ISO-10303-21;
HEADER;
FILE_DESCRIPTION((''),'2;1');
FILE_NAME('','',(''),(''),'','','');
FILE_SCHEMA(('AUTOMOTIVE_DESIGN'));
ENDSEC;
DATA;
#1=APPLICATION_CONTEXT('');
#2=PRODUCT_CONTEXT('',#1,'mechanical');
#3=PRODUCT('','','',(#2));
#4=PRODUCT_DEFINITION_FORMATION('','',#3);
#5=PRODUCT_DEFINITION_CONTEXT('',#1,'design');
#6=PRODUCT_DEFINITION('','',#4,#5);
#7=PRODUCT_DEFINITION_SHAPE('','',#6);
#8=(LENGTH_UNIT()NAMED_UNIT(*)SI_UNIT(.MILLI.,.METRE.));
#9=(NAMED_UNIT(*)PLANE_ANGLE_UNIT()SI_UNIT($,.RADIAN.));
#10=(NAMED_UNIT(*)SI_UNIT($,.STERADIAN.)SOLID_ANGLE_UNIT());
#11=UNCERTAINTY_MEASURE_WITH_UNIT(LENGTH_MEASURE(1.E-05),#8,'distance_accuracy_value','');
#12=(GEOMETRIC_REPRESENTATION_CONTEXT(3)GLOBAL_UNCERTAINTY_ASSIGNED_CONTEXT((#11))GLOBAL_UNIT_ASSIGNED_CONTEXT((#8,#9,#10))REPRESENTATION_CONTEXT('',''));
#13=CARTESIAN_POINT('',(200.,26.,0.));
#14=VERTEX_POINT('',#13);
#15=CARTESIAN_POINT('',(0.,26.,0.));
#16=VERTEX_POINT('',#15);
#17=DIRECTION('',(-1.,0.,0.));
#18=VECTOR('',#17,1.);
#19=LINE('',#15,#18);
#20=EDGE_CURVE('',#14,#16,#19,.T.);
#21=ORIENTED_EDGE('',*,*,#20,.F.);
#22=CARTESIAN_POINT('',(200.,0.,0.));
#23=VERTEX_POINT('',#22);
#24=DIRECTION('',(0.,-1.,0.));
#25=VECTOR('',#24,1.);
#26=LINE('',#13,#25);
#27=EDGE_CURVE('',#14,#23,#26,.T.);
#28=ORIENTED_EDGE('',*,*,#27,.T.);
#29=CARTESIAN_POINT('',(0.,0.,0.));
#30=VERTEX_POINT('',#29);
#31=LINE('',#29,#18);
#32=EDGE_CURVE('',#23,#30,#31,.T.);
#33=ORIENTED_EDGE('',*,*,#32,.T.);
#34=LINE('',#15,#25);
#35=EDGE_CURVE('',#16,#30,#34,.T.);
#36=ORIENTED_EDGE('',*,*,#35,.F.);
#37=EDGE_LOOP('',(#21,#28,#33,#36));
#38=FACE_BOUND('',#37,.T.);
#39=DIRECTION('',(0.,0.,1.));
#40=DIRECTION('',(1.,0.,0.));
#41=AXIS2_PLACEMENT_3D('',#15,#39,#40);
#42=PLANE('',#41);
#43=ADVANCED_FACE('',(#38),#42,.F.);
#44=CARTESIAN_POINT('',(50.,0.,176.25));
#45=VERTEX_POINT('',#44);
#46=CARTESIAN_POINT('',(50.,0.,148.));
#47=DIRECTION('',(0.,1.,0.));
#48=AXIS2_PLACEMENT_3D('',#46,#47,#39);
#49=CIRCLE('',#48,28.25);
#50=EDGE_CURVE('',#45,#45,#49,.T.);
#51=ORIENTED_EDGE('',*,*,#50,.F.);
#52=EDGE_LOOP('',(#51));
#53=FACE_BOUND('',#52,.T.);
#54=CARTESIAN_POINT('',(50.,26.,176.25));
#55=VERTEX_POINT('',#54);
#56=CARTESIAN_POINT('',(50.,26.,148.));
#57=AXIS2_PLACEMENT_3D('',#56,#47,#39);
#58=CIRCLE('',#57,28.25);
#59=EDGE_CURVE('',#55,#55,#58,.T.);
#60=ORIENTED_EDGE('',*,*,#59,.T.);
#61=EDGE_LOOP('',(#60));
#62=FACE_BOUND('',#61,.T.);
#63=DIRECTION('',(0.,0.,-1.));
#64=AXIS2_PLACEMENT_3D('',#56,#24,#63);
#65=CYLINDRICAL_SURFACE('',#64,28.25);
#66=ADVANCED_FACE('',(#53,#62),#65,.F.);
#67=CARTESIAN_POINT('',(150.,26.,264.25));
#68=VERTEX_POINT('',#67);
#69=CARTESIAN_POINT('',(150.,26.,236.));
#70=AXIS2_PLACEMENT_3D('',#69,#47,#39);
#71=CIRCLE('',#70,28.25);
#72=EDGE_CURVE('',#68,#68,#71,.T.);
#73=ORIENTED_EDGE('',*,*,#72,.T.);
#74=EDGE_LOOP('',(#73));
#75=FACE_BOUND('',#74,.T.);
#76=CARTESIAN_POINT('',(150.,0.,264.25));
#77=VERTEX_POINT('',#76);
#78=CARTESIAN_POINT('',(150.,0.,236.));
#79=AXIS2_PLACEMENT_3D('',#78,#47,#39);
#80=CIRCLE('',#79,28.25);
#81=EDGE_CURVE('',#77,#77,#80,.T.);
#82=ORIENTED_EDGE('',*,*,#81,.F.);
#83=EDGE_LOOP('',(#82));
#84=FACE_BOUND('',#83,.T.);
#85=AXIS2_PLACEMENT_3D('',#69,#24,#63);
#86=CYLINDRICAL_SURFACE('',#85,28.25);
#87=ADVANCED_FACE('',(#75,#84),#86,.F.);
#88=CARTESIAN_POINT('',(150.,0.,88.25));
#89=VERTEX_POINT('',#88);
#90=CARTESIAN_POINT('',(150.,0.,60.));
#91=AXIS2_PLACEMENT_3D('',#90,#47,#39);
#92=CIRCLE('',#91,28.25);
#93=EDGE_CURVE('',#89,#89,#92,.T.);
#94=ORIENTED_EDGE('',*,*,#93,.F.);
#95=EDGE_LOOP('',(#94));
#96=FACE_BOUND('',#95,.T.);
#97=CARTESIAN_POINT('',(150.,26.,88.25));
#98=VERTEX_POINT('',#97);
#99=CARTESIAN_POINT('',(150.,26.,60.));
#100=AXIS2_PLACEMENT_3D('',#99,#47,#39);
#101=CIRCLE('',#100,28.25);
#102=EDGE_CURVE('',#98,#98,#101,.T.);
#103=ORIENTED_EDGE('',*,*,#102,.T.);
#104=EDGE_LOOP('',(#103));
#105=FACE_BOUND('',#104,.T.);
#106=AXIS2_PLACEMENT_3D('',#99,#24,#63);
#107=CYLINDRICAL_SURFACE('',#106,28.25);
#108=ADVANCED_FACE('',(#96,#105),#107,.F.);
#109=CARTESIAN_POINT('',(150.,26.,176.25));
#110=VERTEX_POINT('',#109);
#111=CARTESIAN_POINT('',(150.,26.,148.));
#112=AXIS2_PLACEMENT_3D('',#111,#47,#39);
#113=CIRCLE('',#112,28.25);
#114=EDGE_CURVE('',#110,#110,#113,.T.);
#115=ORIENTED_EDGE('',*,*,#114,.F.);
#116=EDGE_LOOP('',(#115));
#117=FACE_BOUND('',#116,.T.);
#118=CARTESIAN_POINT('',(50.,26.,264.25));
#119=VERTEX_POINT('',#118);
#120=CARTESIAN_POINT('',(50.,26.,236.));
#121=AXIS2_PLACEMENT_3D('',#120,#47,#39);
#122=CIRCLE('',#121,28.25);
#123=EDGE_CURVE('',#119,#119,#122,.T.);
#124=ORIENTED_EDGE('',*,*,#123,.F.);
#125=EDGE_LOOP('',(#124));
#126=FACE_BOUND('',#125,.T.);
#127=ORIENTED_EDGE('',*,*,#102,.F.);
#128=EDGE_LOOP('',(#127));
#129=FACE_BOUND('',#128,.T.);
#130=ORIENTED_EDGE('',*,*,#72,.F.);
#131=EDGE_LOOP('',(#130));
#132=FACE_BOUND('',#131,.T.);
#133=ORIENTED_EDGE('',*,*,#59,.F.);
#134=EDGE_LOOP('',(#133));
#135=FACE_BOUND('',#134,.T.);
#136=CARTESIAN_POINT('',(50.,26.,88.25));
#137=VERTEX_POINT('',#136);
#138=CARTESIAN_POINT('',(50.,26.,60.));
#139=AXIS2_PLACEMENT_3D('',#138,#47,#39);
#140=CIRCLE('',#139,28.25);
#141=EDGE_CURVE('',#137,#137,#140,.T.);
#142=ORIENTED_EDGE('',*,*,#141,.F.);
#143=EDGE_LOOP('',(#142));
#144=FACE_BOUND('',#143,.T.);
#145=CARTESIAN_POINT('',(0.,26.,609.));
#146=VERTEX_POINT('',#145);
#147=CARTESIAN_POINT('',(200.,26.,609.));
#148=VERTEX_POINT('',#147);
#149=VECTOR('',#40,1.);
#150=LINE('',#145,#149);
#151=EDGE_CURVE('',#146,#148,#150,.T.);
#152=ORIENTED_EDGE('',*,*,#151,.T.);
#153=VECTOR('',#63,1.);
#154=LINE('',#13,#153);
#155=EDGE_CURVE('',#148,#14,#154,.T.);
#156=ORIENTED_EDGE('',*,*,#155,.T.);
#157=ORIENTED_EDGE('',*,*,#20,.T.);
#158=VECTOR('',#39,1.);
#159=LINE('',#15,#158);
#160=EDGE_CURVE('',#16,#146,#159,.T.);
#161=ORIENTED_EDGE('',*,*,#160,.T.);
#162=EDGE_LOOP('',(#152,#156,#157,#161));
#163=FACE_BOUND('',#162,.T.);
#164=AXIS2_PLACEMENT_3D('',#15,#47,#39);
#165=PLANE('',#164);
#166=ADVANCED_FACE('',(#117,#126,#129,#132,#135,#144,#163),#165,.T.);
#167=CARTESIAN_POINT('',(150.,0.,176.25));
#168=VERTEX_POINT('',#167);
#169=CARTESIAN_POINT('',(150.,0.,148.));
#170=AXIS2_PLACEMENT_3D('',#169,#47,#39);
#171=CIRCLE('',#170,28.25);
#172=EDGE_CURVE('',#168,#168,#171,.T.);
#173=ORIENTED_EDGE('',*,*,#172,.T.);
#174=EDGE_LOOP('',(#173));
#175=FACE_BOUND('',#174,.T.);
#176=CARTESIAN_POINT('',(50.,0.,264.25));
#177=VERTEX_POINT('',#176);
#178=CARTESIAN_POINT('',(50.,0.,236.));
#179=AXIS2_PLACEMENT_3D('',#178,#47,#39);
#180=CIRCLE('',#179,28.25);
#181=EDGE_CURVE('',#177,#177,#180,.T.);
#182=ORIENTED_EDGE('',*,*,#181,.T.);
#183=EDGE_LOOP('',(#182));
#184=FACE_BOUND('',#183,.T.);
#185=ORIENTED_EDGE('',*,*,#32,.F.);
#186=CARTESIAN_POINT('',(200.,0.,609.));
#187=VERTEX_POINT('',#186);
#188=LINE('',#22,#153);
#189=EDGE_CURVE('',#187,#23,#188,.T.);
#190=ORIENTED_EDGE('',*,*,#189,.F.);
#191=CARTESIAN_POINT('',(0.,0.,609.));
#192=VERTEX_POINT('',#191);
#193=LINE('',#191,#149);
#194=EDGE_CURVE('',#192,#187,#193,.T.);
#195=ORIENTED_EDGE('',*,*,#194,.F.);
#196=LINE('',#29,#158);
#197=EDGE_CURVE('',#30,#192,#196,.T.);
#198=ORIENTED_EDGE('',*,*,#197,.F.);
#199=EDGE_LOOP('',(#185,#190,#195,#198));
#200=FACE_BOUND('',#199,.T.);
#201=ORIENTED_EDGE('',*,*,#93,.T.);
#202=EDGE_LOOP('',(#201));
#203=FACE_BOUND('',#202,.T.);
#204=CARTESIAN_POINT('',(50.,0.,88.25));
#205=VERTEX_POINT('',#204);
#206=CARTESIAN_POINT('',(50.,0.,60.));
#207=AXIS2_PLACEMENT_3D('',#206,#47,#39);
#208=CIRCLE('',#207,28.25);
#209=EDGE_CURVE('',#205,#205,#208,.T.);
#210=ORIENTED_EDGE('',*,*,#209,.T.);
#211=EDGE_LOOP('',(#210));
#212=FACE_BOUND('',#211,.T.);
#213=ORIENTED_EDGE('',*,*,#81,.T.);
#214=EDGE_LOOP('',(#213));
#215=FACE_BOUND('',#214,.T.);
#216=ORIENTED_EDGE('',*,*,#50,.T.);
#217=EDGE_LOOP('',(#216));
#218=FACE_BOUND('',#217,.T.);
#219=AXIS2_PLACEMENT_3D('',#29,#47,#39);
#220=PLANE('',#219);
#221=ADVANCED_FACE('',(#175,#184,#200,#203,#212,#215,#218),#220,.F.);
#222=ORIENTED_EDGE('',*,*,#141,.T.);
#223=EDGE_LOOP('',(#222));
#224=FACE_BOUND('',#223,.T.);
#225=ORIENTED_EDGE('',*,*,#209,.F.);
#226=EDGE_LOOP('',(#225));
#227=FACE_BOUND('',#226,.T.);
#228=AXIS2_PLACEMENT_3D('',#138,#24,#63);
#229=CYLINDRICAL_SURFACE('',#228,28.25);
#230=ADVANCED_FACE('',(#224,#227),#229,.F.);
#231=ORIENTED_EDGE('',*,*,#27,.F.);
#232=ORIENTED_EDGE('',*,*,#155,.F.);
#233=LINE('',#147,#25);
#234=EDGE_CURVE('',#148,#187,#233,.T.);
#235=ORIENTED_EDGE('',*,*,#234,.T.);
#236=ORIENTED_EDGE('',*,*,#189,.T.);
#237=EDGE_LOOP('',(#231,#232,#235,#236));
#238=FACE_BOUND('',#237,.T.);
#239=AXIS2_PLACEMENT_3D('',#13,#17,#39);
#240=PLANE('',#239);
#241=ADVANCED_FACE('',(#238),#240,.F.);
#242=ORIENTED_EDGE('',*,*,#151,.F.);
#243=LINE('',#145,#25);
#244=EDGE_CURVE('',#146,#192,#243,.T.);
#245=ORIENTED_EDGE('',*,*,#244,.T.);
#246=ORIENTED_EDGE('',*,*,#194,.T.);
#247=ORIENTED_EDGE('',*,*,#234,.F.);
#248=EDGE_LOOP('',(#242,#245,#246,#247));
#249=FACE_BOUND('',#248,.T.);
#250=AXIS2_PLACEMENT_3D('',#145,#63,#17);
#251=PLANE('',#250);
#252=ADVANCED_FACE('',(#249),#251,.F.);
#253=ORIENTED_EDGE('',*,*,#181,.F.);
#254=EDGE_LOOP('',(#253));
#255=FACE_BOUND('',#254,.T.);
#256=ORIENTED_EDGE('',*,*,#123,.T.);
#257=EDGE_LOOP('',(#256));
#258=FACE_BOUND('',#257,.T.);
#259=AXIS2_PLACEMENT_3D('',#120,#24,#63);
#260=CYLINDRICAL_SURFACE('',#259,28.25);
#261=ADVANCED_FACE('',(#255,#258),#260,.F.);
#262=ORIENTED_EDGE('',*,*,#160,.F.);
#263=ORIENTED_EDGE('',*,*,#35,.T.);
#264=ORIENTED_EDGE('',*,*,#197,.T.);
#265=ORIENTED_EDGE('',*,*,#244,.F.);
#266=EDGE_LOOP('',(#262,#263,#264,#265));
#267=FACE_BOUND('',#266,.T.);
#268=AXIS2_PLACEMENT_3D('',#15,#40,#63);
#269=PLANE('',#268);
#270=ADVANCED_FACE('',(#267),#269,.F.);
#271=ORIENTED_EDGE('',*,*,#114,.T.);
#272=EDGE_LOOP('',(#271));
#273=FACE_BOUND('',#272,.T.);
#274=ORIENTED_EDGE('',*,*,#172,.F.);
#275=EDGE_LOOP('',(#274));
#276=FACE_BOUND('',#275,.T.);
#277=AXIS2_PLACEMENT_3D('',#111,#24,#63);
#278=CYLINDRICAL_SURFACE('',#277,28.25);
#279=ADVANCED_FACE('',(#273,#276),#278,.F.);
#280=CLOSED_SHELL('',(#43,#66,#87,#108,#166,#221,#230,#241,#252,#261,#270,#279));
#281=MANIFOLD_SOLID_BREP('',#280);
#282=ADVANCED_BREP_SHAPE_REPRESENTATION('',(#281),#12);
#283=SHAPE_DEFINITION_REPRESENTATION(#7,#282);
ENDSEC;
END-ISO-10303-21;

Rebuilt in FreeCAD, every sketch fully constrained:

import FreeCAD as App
import Part
import Sketcher
Q = App.Units.Quantity


def add_polygon(sketch, points):
    """Adds a closed chain of lines whose ends are joined by coincident constraints."""
    first, n = sketch.GeometryCount, len(points)
    for a, b in zip(points, points[1:] + points[:1]):
        sketch.addGeometry(Part.LineSegment(App.Vector(*a, 0), App.Vector(*b, 0)), False)
    for i in range(n):
        sketch.addConstraint(Sketcher.Constraint("Coincident", first + i, 2, first + (i + 1) % n, 1))

doc = App.newDocument("Part")
body = doc.addObject("PartDesign::Body", "Body")

# Sketch on XZ plane
sketch1 = body.newObject("Sketcher::SketchObject", "Sketch")
sketch1.AttachmentSupport = (doc.getObject("XZ_Plane"), [""])
sketch1.MapMode = "FlatFace"
add_polygon(sketch1, [(0, 0), (0, 609), (200, 609), (200, 0)])  # lines 0-3
sketch1.addGeometry(Part.Circle(App.Vector(50, 236, 0), App.Vector(0, 0, 1), 28), False)  # 4
sketch1.addGeometry(Part.Circle(App.Vector(150, 236, 0), App.Vector(0, 0, 1), 28), False)  # 5
sketch1.addGeometry(Part.Circle(App.Vector(50, 148, 0), App.Vector(0, 0, 1), 28), False)  # 6
sketch1.addGeometry(Part.Circle(App.Vector(50, 60, 0), App.Vector(0, 0, 1), 28), False)  # 7
sketch1.addGeometry(Part.Circle(App.Vector(150, 148, 0), App.Vector(0, 0, 1), 28), False)  # 8
sketch1.addGeometry(Part.Circle(App.Vector(150, 60, 0), App.Vector(0, 0, 1), 28), False)  # 9
sketch1.addConstraint([
    Sketcher.Constraint("Vertical", 0),
    Sketcher.Constraint("Horizontal", 1),
    Sketcher.Constraint("Vertical", 2),
    Sketcher.Constraint("Horizontal", 3),
    Sketcher.Constraint("Coincident", 3, 2, -1, 1),
    Sketcher.Constraint("Equal", 4, 5),
    Sketcher.Constraint("Equal", 5, 6),
    Sketcher.Constraint("Equal", 6, 7),
    Sketcher.Constraint("Equal", 7, 8),
    Sketcher.Constraint("Equal", 8, 9),
    Sketcher.Constraint("Horizontal", 4, 3, 5, 3),
    Sketcher.Constraint("Horizontal", 6, 3, 8, 3),
    Sketcher.Constraint("Horizontal", 7, 3, 9, 3),
    Sketcher.Constraint("Vertical", 4, 3, 6, 3),
    Sketcher.Constraint("Vertical", 6, 3, 7, 3),
    Sketcher.Constraint("Vertical", 5, 3, 8, 3),
    Sketcher.Constraint("Vertical", 8, 3, 9, 3),
    Sketcher.Constraint("Diameter", 4, Q("56.5 mm")),
    Sketcher.Constraint("DistanceX", 1, 1, 1, 2, Q("200 mm")),
    Sketcher.Constraint("DistanceY", 0, 1, 0, 2, Q("609 mm")),
    Sketcher.Constraint("DistanceX", -1, 1, 4, 3, Q("50 mm")),
    Sketcher.Constraint("DistanceY", -1, 1, 4, 3, Q("236 mm")),
    Sketcher.Constraint("DistanceX", -1, 1, 5, 3, Q("150 mm")),
    Sketcher.Constraint("DistanceY", -1, 1, 6, 3, Q("148 mm")),
    Sketcher.Constraint("DistanceY", -1, 1, 7, 3, Q("60 mm")),
])
pad1 = body.newObject("PartDesign::Pad", "Pad")
pad1.Profile = sketch1
pad1.Length = 26
pad1.Reversed = True

doc.recompute()
